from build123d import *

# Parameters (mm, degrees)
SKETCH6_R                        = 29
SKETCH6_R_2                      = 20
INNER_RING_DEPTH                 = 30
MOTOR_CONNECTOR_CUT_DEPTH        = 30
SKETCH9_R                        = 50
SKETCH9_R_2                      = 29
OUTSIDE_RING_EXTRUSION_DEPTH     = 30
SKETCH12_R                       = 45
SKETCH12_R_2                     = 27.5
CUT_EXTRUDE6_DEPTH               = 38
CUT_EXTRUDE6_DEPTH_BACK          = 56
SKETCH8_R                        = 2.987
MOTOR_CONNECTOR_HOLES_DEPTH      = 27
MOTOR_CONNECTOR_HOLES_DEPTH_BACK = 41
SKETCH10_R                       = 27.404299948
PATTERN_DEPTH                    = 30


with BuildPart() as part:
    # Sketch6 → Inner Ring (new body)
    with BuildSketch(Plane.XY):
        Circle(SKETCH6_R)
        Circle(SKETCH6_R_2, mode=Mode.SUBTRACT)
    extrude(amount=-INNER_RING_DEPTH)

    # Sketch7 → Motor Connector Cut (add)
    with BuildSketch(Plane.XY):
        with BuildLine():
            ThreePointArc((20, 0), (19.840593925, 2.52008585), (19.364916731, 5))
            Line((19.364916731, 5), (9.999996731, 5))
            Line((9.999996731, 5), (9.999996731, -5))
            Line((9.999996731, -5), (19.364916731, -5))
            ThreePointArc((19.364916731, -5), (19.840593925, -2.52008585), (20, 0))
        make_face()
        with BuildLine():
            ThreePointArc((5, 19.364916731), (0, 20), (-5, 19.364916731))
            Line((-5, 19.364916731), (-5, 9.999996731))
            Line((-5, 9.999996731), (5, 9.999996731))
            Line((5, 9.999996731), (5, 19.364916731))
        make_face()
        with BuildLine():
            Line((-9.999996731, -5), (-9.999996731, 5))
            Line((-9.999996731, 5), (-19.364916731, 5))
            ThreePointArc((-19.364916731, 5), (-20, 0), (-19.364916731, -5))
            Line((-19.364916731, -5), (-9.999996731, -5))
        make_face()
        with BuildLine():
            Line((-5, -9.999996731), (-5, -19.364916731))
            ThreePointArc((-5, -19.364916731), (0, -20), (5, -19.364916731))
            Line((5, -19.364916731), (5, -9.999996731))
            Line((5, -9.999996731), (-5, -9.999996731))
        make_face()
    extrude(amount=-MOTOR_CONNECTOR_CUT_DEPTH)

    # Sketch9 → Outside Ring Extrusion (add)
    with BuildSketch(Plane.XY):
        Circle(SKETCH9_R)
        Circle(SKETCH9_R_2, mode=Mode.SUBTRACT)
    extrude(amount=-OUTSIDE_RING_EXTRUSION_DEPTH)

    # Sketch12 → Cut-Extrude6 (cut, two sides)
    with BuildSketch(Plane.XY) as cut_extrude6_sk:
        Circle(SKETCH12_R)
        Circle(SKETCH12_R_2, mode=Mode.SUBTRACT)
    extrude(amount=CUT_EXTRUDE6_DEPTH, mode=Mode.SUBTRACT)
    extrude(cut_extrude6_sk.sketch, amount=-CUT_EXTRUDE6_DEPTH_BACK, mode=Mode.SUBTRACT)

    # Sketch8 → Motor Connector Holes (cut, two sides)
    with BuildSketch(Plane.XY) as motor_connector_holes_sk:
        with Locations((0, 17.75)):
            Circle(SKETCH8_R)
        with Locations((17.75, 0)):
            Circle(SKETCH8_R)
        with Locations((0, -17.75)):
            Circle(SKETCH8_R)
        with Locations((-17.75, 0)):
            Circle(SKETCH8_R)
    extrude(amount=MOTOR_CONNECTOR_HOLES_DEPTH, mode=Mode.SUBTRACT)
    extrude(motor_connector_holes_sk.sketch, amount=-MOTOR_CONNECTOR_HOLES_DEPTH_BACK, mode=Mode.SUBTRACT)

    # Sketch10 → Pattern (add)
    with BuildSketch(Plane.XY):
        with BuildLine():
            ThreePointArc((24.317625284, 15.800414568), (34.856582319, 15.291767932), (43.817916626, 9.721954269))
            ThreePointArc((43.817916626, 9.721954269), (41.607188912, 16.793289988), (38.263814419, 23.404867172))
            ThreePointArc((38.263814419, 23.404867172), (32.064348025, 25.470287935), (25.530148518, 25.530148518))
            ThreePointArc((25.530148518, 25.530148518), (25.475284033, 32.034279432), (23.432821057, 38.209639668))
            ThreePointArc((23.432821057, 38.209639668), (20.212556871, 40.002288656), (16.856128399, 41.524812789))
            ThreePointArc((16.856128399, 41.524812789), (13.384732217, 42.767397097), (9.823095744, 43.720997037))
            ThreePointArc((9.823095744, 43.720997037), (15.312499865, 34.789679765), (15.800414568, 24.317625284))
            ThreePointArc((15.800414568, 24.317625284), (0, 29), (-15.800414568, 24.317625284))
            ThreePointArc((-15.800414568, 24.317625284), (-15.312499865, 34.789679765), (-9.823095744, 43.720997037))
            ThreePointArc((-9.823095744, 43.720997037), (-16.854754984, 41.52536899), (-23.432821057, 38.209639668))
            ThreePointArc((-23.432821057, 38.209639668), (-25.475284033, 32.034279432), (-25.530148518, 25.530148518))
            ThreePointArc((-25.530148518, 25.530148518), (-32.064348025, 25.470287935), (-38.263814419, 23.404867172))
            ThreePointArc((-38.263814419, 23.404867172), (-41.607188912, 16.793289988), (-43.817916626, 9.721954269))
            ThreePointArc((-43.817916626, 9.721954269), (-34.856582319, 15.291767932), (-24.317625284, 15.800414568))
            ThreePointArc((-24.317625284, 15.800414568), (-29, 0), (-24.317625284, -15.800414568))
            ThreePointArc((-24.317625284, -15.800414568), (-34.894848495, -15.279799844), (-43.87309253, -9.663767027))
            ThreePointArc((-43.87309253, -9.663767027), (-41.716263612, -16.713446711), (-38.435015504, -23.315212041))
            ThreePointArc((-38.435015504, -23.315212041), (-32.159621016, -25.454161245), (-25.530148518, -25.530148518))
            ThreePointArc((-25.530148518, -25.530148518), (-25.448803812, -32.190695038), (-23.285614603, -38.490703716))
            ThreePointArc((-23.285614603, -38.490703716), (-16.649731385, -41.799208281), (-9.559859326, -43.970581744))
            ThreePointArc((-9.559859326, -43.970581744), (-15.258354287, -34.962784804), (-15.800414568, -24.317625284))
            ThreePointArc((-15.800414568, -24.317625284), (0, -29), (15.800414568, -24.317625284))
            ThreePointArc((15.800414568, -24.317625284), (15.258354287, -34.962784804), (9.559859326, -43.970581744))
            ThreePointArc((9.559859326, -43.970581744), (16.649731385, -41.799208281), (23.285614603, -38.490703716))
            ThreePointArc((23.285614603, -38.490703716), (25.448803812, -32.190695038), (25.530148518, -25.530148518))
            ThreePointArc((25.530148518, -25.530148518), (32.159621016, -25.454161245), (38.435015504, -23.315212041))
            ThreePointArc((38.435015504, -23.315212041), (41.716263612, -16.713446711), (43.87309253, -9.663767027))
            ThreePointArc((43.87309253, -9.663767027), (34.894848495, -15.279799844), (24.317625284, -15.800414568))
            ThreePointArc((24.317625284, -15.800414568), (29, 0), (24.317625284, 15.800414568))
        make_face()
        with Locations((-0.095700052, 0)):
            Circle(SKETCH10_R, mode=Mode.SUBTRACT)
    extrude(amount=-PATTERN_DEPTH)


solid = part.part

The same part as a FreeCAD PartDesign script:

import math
import FreeCAD as App
import Part
import Sketcher
from FreeCAD import Vector

doc = App.newDocument("Part")
params = doc.addObject("Spreadsheet::Sheet", "Params")
for row, (alias, value) in enumerate([
    ("sketch1_diameter", "58 mm"),
    ("sketch1_diameter2", "40 mm"),
    ("pad1_length", "30 mm"),
    ("sketch2_radius", "20 mm"),
    ("sketch2_width", "10 mm"),
    ("pad2_length", "30 mm"),
    ("sketch3_diameter", "100 mm"),
    ("sketch3_diameter2", "58 mm"),
    ("pad3_length", "30 mm"),
    ("sketch4_diameter", "90 mm"),
    ("sketch4_diameter2", "55 mm"),
    ("sketch6_radius", "21 mm"),
    ("sketch6_radius2", "29 mm"),
    ("pad4_length", "30 mm"),
], start=1):
    params.set(f"A{row}", alias)
    params.set(f"B{row}", "=" + value)
    params.setAlias(f"B{row}", alias)

body = doc.addObject("PartDesign::Body", "Body")
body.AllowCompound = True

# Sketch on XY plane
sketch1 = doc.addObject("Sketcher::SketchObject", "Sketch")
body.addObject(sketch1)
sketch1.AttachmentSupport = (doc.XY_Plane, [""])
sketch1.MapMode = "FlatFace"
sketch1.addGeometry([
    Part.Circle(Vector(0, 0, 0), Vector(0, 0, 1), 29),
    Part.Circle(Vector(0, 0, 0), Vector(0, 0, 1), 20),
], False)
sketch1.addConstraint([
    Sketcher.Constraint("Coincident", 0, 3, -1, 1),
    Sketcher.Constraint("Coincident", 1, 3, -1, 1),
    Sketcher.Constraint("Diameter", 0, 58.0),
    Sketcher.Constraint("Diameter", 1, 40.0),
])
sketch1.setExpression("Constraints[2]", "Params.sketch1_diameter")
sketch1.setExpression("Constraints[3]", "Params.sketch1_diameter2")
pad1 = doc.addObject("PartDesign::Pad", "Pad")
body.addObject(pad1)
pad1.Profile = sketch1
pad1.setExpression("Length", "Params.pad1_length")
pad1.Reversed = True

# Sketch on XY plane
sketch2 = doc.addObject("Sketcher::SketchObject", "Sketch001")
body.addObject(sketch2)
sketch2.AttachmentSupport = (doc.XY_Plane, [""])
sketch2.MapMode = "FlatFace"
sketch2.addGeometry([
    Part.ArcOfCircle(Part.Circle(Vector(0, 0, 0), Vector(0, 0, 1), 20), math.radians(0), math.radians(14.48)),  # 0
    Part.LineSegment(Vector(19, 5, 0), Vector(10, 5, 0)),  # 1
    Part.LineSegment(Vector(10, 5, 0), Vector(10, -5, 0)),  # 2
    Part.LineSegment(Vector(10, -5, 0), Vector(19, -5, 0)),  # 3
    Part.ArcOfCircle(Part.Circle(Vector(0, 0, 0), Vector(0, 0, 1), 20), math.radians(-14.48), math.radians(0)),  # 4
    Part.ArcOfCircle(Part.Circle(Vector(0, 0, 0), Vector(0, 0, 1), 20), math.radians(76), math.radians(104)),  # 5
    Part.LineSegment(Vector(-5, 19, 0), Vector(-5, 10, 0)),  # 6
    Part.LineSegment(Vector(-5, 10, 0), Vector(5, 10, 0)),  # 7
    Part.LineSegment(Vector(5, 10, 0), Vector(5, 19, 0)),  # 8
    Part.LineSegment(Vector(-10, -5, 0), Vector(-10, 5, 0)),  # 9
    Part.LineSegment(Vector(-10, 5, 0), Vector(-19, 5, 0)),  # 10
    Part.ArcOfCircle(Part.Circle(Vector(0, 0, 0), Vector(0, 0, 1), 20), math.radians(166), math.radians(194)),  # 11
    Part.LineSegment(Vector(-19, -5, 0), Vector(-10, -5, 0)),  # 12
    Part.LineSegment(Vector(-5, -10, 0), Vector(-5, -19, 0)),  # 13
    Part.ArcOfCircle(Part.Circle(Vector(0, 0, 0), Vector(0, 0, 1), 20), math.radians(-104), math.radians(-76)),  # 14
    Part.LineSegment(Vector(5, -19, 0), Vector(5, -10, 0)),  # 15
    Part.LineSegment(Vector(5, -10, 0), Vector(-5, -10, 0)),  # 16
], False)
sketch2.addConstraint([
    Sketcher.Constraint("Coincident", 0, 2, 1, 1),
    Sketcher.Constraint("Coincident", 1, 2, 2, 1),
    Sketcher.Constraint("Coincident", 2, 2, 3, 1),
    Sketcher.Constraint("Coincident", 3, 2, 4, 1),
    Sketcher.Constraint("Tangent", 4, 2, 0, 1),
    Sketcher.Constraint("Coincident", 5, 2, 6, 1),
    Sketcher.Constraint("Coincident", 6, 2, 7, 1),
    Sketcher.Constraint("Coincident", 7, 2, 8, 1),
    Sketcher.Constraint("Coincident", 8, 2, 5, 1),
    Sketcher.Constraint("Coincident", 9, 2, 10, 1),
    Sketcher.Constraint("Coincident", 10, 2, 11, 1),
    Sketcher.Constraint("Coincident", 11, 2, 12, 1),
    Sketcher.Constraint("Coincident", 12, 2, 9, 1),
    Sketcher.Constraint("Coincident", 13, 2, 14, 1),
    Sketcher.Constraint("Coincident", 14, 2, 15, 1),
    Sketcher.Constraint("Coincident", 15, 2, 16, 1),
    Sketcher.Constraint("Coincident", 16, 2, 13, 1),
    Sketcher.Constraint("Horizontal", 1),
    Sketcher.Constraint("Vertical", 2),
    Sketcher.Constraint("Horizontal", 3),
    Sketcher.Constraint("Vertical", 6),
    Sketcher.Constraint("Horizontal", 7),
    Sketcher.Constraint("Vertical", 8),
    Sketcher.Constraint("Vertical", 9),
    Sketcher.Constraint("Horizontal", 10),
    Sketcher.Constraint("Horizontal", 12),
    Sketcher.Constraint("Vertical", 13),
    Sketcher.Constraint("Vertical", 15),
    Sketcher.Constraint("Horizontal", 16),
    Sketcher.Constraint("Coincident", 0, 3, -1, 1),
    Sketcher.Constraint("Coincident", 5, 3, -1, 1),
    Sketcher.Constraint("Coincident", 11, 3, -1, 1),
    Sketcher.Constraint("Coincident", 14, 3, -1, 1),
    Sketcher.Constraint("Equal", 0, 4),
    Sketcher.Constraint("Equal", 4, 5),
    Sketcher.Constraint("Equal", 5, 11),
    Sketcher.Constraint("Equal", 11, 14),
    Sketcher.Constraint("Symmetric", 2, 2, 9, 2, -1, 1),
    Sketcher.Constraint("Symmetric", 6, 2, 15, 2, -1, 1),
    Sketcher.Constraint("PointOnObject", 4, 2, -1),
    Sketcher.Constraint("Horizontal", 5, 2, 8, 2),
    Sketcher.Constraint("Horizontal", 1, 2, 9, 2),
    Sketcher.Constraint("Horizontal", 3, 2, 11, 2),
    Sketcher.Constraint("Horizontal", 13, 2, 14, 2),
    Sketcher.Constraint("Equal", 16, 2),
    Sketcher.Constraint("Equal", 12, 6),
    Sketcher.Constraint("Radius", 0, 20.0),
    Sketcher.Constraint("DistanceX", 7, 1, 7, 2, 10.0),
    Sketcher.Constraint("DistanceX", 1, 2, 1, 1, 9.36492),
])
sketch2.setExpression("Constraints[46]", "Params.sketch2_radius")
sketch2.setExpression("Constraints[47]", "Params.sketch2_width")
pad2 = doc.addObject("PartDesign::Pad", "Pad001")
body.addObject(pad2)
pad2.Profile = sketch2
pad2.setExpression("Length", "Params.pad2_length")
pad2.Reversed = True

# Sketch on XY plane
sketch3 = doc.addObject("Sketcher::SketchObject", "Sketch002")
body.addObject(sketch3)
sketch3.AttachmentSupport = (doc.XY_Plane, [""])
sketch3.MapMode = "FlatFace"
sketch3.addGeometry([
    Part.Circle(Vector(0, 0, 0), Vector(0, 0, 1), 50),
    Part.Circle(Vector(0, 0, 0), Vector(0, 0, 1), 29),
], False)
sketch3.addConstraint([
    Sketcher.Constraint("Coincident", 0, 3, -1, 1),
    Sketcher.Constraint("Coincident", 1, 3, -1, 1),
    Sketcher.Constraint("Diameter", 0, 100.0),
    Sketcher.Constraint("Diameter", 1, 58.0),
])
sketch3.setExpression("Constraints[2]", "Params.sketch3_diameter")
sketch3.setExpression("Constraints[3]", "Params.sketch3_diameter2")
pad3 = doc.addObject("PartDesign::Pad", "Pad002")
body.addObject(pad3)
pad3.Profile = sketch3
pad3.setExpression("Length", "Params.pad3_length")
pad3.Reversed = True

# Sketch on XY plane
sketch4 = doc.addObject("Sketcher::SketchObject", "Sketch003")
body.addObject(sketch4)
sketch4.AttachmentSupport = (doc.XY_Plane, [""])
sketch4.MapMode = "FlatFace"
sketch4.addGeometry([
    Part.Circle(Vector(0, 0, 0), Vector(0, 0, 1), 45),
    Part.Circle(Vector(0, 0, 0), Vector(0, 0, 1), 28),
], False)
sketch4.addConstraint([
    Sketcher.Constraint("Coincident", 0, 3, -1, 1),
    Sketcher.Constraint("Coincident", 1, 3, -1, 1),
    Sketcher.Constraint("Diameter", 0, 90.0),
    Sketcher.Constraint("Diameter", 1, 55.0),
])
sketch4.setExpression("Constraints[2]", "Params.sketch4_diameter")
sketch4.setExpression("Constraints[3]", "Params.sketch4_diameter2")
pocket1 = doc.addObject("PartDesign::Pocket", "Pocket")
body.addObject(pocket1)
pocket1.Profile = sketch4
pocket1.Type = "ThroughAll"
pocket1.Midplane = True

# Sketch on XY plane
sketch5 = doc.addObject("Sketcher::SketchObject", "Sketch004")
body.addObject(sketch5)
sketch5.AttachmentSupport = (doc.XY_Plane, [""])
sketch5.MapMode = "FlatFace"
sketch5.addGeometry([
    Part.Circle(Vector(0, 17.8, 0), Vector(0, 0, 1), 3),
    Part.Circle(Vector(17.8, 0, 0), Vector(0, 0, 1), 3),
    Part.Circle(Vector(0, -17.8, 0), Vector(0, 0, 1), 3),
    Part.Circle(Vector(-17.8, 0, 0), Vector(0, 0, 1), 3),
], False)
sketch5.addConstraint([
    Sketcher.Constraint("Equal", 0, 1),
    Sketcher.Constraint("Equal", 1, 2),
    Sketcher.Constraint("Equal", 2, 3),
    Sketcher.Constraint("Symmetric", 0, 3, 2, 3, -1, 1),
    Sketcher.Constraint("Symmetric", 1, 3, 3, 3, -1, 1),
    Sketcher.Constraint("PointOnObject", 0, 3, -2),
    Sketcher.Constraint("PointOnObject", 1, 3, -1),
    Sketcher.Constraint("Diameter", 0, 5.974),
    Sketcher.Constraint("DistanceY", 2, 3, 0, 3, 35.5),
    Sketcher.Constraint("DistanceX", 3, 3, 1, 3, 35.5),
])
pocket2 = doc.addObject("PartDesign::Pocket", "Pocket001")
body.addObject(pocket2)
pocket2.Profile = sketch5
pocket2.Type = "ThroughAll"
pocket2.Midplane = True

# Sketch on XY plane
sketch6 = doc.addObject("Sketcher::SketchObject", "Sketch005")
body.addObject(sketch6)
sketch6.AttachmentSupport = (doc.XY_Plane, [""])
sketch6.MapMode = "FlatFace"
sketch6.addGeometry([
    Part.ArcOfCircle(Part.Circle(Vector(29, -5, 0), Vector(0, 0, 1), 21), math.radians(44), math.radians(102)),  # 0
    Part.ArcOfCircle(Part.Circle(Vector(0, 0, 0), Vector(0, 0, 1), 45), math.radians(12.63), math.radians(31.56)),  # 1
    Part.ArcOfCircle(Part.Circle(Vector(29, 5, 0), Vector(0, 0, 1), 21), math.radians(63), math.radians(98)),  # 2
    Part.ArcOfCircle(Part.Circle(Vector(5, 29, 0), Vector(0, 0, 1), 21), math.radians(-8), math.radians(27)),  # 3
    Part.ArcOfCircle(Part.Circle(Vector(0, 0, 0), Vector(0, 0, 1), 45), math.radians(58.54), math.radians(67.95)),  # 4
    Part.ArcOfCircle(Part.Circle(Vector(0, 0, 0), Vector(0, 0, 1), 45), math.radians(67.95), math.radians(77.36)),  # 5
    Part.ArcOfCircle(Part.Circle(Vector(-5, 29, 0), Vector(0, 0, 1), 21), math.radians(-12), math.radians(46)),  # 6
    Part.ArcOfCircle(Part.Circle(Vector(0, 0, 0), Vector(0, 0, 1), 29), math.radians(57), math.radians(123)),  # 7
    Part.ArcOfCircle(Part.Circle(Vector(5, 29, 0), Vector(0, 0, 1), 21), math.radians(134), math.radians(192)),  # 8
    Part.ArcOfCircle(Part.Circle(Vector(0, 0, 0), Vector(0, 0, 1), 45), math.radians(102.64), math.radians(121.46)),  # 9
    Part.ArcOfCircle(Part.Circle(Vector(-5, 29, 0), Vector(0, 0, 1), 21), math.radians(153), math.radians(188)),  # 10
    Part.ArcOfCircle(Part.Circle(Vector(-29, 5, 0), Vector(0, 0, 1), 21), math.radians(82), math.radians(117)),  # 11
    Part.ArcOfCircle(Part.Circle(Vector(0, 0, 0), Vector(0, 0, 1), 45), math.radians(148.44), math.radians(167.37)),  # 12
    Part.ArcOfCircle(Part.Circle(Vector(-29, -5, 0), Vector(0, 0, 1), 21), math.radians(78), math.radians(136)),  # 13
    Part.ArcOfCircle(Part.Circle(Vector(0, 0, 0), Vector(0, 0, 1), 29), math.radians(147), math.radians(213)),  # 14
    Part.ArcOfCircle(Part.Circle(Vector(-29, 5, 0), Vector(0, 0, 1), 21), math.radians(-137), math.radians(-78)),  # 15
    Part.ArcOfCircle(Part.Circle(Vector(0, 0, 0), Vector(0, 0, 1), 45), math.radians(-167.7), math.radians(-148.86)),  # 16
    Part.ArcOfCircle(Part.Circle(Vector(-29, -5, 0), Vector(0, 0, 1), 21), math.radians(-118), math.radians(-82)),  # 17
    Part.ArcOfCircle(Part.Circle(Vector(-5, -29, 0), Vector(0, 0, 1), 21), math.radians(172), math.radians(208)),  # 18
    Part.ArcOfCircle(Part.Circle(Vector(0, 0, 0), Vector(0, 0, 1), 45), math.radians(-121.24), math.radians(-102.29)),  # 19
    Part.ArcOfCircle(Part.Circle(Vector(5, -29, 0), Vector(0, 0, 1), 21), math.radians(168), math.radians(227)),  # 20
    Part.ArcOfCircle(Part.Circle(Vector(0, 0, 0), Vector(0, 0, 1), 29), math.radians(-123), math.radians(-57)),  # 21
    Part.ArcOfCircle(Part.Circle(Vector(-5, -29, 0), Vector(0, 0, 1), 21), math.radians(-47), math.radians(12)),  # 22
    Part.ArcOfCircle(Part.Circle(Vector(0, 0, 0), Vector(0, 0, 1), 45), math.radians(-77.71), math.radians(-58.76)),  # 23
    Part.ArcOfCircle(Part.Circle(Vector(5, -29, 0), Vector(0, 0, 1), 21), math.radians(-28), math.radians(8)),  # 24
    Part.ArcOfCircle(Part.Circle(Vector(29, -5, 0), Vector(0, 0, 1), 21), math.radians(-98), math.radians(-62)),  # 25
    Part.ArcOfCircle(Part.Circle(Vector(0, 0, 0), Vector(0, 0, 1), 45), math.radians(-31.14), math.radians(-12.3)),  # 26
    Part.ArcOfCircle(Part.Circle(Vector(29, 5, 0), Vector(0, 0, 1), 21), math.radians(-102), math.radians(-43)),  # 27
    Part.ArcOfCircle(Part.Circle(Vector(0, 0, 0), Vector(0, 0, 1), 29), math.radians(-33), math.radians(33)),  # 28
    Part.Circle(Vector(0, 0, 0), Vector(0, 0, 1), 27),  # 29
], False)
sketch6.addConstraint([
    Sketcher.Constraint("Coincident", 0, 1, 1, 1),
    Sketcher.Constraint("Coincident", 1, 2, 2, 1),
    Sketcher.Constraint("Coincident", 2, 2, 3, 1),
    Sketcher.Constraint("Coincident", 3, 2, 4, 1),
    Sketcher.Constraint("Tangent", 4, 2, 5, 1),
    Sketcher.Constraint("Coincident", 5, 2, 6, 2),
    Sketcher.Constraint("Coincident", 6, 1, 7, 1),
    Sketcher.Constraint("Coincident", 7, 2, 8, 2),
    Sketcher.Constraint("Coincident", 8, 1, 9, 1),
    Sketcher.Constraint("Coincident", 9, 2, 10, 1),
    Sketcher.Constraint("Coincident", 10, 2, 11, 1),
    Sketcher.Constraint("Coincident", 11, 2, 12, 1),
    Sketcher.Constraint("Coincident", 12, 2, 13, 2),
    Sketcher.Constraint("Coincident", 13, 1, 14, 1),
    Sketcher.Constraint("Coincident", 14, 2, 15, 2),
    Sketcher.Constraint("Coincident", 15, 1, 16, 1),
    Sketcher.Constraint("Coincident", 16, 2, 17, 1),
    Sketcher.Constraint("Coincident", 17, 2, 18, 1),
    Sketcher.Constraint("Coincident", 18, 2, 19, 1),
    Sketcher.Constraint("Coincident", 19, 2, 20, 2),
    Sketcher.Constraint("Coincident", 20, 1, 21, 1),
    Sketcher.Constraint("Coincident", 21, 2, 22, 2),
    Sketcher.Constraint("Coincident", 22, 1, 23, 1),
    Sketcher.Constraint("Coincident", 23, 2, 24, 1),
    Sketcher.Constraint("Coincident", 24, 2, 25, 1),
    Sketcher.Constraint("Coincident", 25, 2, 26, 1),
    Sketcher.Constraint("Coincident", 26, 2, 27, 2),
    Sketcher.Constraint("Coincident", 27, 1, 28, 1),
    Sketcher.Constraint("Coincident", 28, 2, 0, 2),
    Sketcher.Constraint("Coincident", 7, 3, -1, 1),
    Sketcher.Constraint("Coincident", 14, 3, -1, 1),
    Sketcher.Constraint("Coincident", 21, 3, -1, 1),
    Sketcher.Constraint("Coincident", 28, 3, -1, 1),
    Sketcher.Constraint("Coincident", 4, 3, 1, 3),
    Sketcher.Constraint("Coincident", 8, 3, 3, 3),
    Sketcher.Constraint("Coincident", 9, 3, 1, 3),
    Sketcher.Constraint("Coincident", 10, 3, 6, 3),
    Sketcher.Constraint("Coincident", 12, 3, 1, 3),
    Sketcher.Constraint("Coincident", 15, 3, 11, 3),
    Sketcher.Constraint("Coincident", 16, 3, 1, 3),
    Sketcher.Constraint("Coincident", 17, 3, 13, 3),
    Sketcher.Constraint("Coincident", 19, 3, 1, 3),
    Sketcher.Constraint("Coincident", 22, 3, 18, 3),
    Sketcher.Constraint("Coincident", 23, 3, 1, 3),
    Sketcher.Constraint("Coincident", 24, 3, 20, 3),
    Sketcher.Constraint("Coincident", 25, 3, 0, 3),
    Sketcher.Constraint("Coincident", 26, 3, 1, 3),
    Sketcher.Constraint("Coincident", 27, 3, 2, 3),
    Sketcher.Constraint("Equal", 0, 2),
    Sketcher.Constraint("Equal", 2, 3),
    Sketcher.Constraint("Equal", 1, 4),
    Sketcher.Constraint("Equal", 4, 5),
    Sketcher.Constraint("Equal", 3, 6),
    Sketcher.Constraint("Equal", 6, 8),
    Sketcher.Constraint("Equal", 5, 9),
    Sketcher.Constraint("Equal", 8, 10),
    Sketcher.Constraint("Equal", 10, 11),
    Sketcher.Constraint("Equal", 9, 12),
    Sketcher.Constraint("Equal", 11, 13),
    Sketcher.Constraint("Equal", 7, 14),
    Sketcher.Constraint("Equal", 13, 15),
    Sketcher.Constraint("Equal", 12, 16),
    Sketcher.Constraint("Equal", 15, 17),
    Sketcher.Constraint("Equal", 17, 18),
    Sketcher.Constraint("Equal", 16, 19),
    Sketcher.Constraint("Equal", 18, 20),
    Sketcher.Constraint("Equal", 14, 21),
    Sketcher.Constraint("Equal", 20, 22),
    Sketcher.Constraint("Equal", 19, 23),
    Sketcher.Constraint("Equal", 22, 24),
    Sketcher.Constraint("Equal", 24, 25),
    Sketcher.Constraint("Equal", 23, 26),
    Sketcher.Constraint("Equal", 25, 27),
    Sketcher.Constraint("Equal", 21, 28),
    Sketcher.Constraint("Symmetric", 0, 3, 11, 3, -1, 1),
    Sketcher.Constraint("Symmetric", 2, 3, 13, 3, -1, 1),
    Sketcher.Constraint("Symmetric", 3, 3, 18, 3, -1, 1),
    Sketcher.Constraint("Symmetric", 6, 3, 20, 3, -1, 1),
    Sketcher.Constraint("Symmetric", 3, 3, 6, 3, -2),
    Sketcher.Constraint("Symmetric", 2, 3, 11, 3, -2),
    Sketcher.Constraint("PointOnObject", 1, 3, -2),
    Sketcher.Constraint("PointOnObject", 29, 3, -1),
    Sketcher.Constraint("Radius", 0, 21.0),
    Sketcher.Constraint("Radius", 7, 29.0),
    Sketcher.Constraint("Diameter", 29, 54.8086),
    Sketcher.Constraint("Radius", 1, 44.9043),
    Sketcher.Constraint("DistanceY", 1, 3, -1, 1, 0.0957),
    Sketcher.Constraint("DistanceX", 29, 3, -1, 1, 0.0957),
    Sketcher.Constraint("DistanceX", 27, 3, 0, 1, 15.210701),
    Sketcher.Constraint("DistanceX", 2, 3, 1, 2, 9.656599),
    Sketcher.Constraint("DistanceX", 11, 3, 7, 2, 12.806801),
    Sketcher.Constraint("DistanceY", 22, 3, 14, 2, 12.806801),
    Sketcher.Constraint("DistanceX", -1, 1, 4, 2, 16.856128),
])
sketch6.setExpression("Constraints[82]", "Params.sketch6_radius")
sketch6.setExpression("Constraints[83]", "Params.sketch6_radius2")
pad4 = doc.addObject("PartDesign::Pad", "Pad003")
body.addObject(pad4)
pad4.Profile = sketch6
pad4.setExpression("Length", "Params.pad4_length")
pad4.Reversed = True

doc.recompute()
